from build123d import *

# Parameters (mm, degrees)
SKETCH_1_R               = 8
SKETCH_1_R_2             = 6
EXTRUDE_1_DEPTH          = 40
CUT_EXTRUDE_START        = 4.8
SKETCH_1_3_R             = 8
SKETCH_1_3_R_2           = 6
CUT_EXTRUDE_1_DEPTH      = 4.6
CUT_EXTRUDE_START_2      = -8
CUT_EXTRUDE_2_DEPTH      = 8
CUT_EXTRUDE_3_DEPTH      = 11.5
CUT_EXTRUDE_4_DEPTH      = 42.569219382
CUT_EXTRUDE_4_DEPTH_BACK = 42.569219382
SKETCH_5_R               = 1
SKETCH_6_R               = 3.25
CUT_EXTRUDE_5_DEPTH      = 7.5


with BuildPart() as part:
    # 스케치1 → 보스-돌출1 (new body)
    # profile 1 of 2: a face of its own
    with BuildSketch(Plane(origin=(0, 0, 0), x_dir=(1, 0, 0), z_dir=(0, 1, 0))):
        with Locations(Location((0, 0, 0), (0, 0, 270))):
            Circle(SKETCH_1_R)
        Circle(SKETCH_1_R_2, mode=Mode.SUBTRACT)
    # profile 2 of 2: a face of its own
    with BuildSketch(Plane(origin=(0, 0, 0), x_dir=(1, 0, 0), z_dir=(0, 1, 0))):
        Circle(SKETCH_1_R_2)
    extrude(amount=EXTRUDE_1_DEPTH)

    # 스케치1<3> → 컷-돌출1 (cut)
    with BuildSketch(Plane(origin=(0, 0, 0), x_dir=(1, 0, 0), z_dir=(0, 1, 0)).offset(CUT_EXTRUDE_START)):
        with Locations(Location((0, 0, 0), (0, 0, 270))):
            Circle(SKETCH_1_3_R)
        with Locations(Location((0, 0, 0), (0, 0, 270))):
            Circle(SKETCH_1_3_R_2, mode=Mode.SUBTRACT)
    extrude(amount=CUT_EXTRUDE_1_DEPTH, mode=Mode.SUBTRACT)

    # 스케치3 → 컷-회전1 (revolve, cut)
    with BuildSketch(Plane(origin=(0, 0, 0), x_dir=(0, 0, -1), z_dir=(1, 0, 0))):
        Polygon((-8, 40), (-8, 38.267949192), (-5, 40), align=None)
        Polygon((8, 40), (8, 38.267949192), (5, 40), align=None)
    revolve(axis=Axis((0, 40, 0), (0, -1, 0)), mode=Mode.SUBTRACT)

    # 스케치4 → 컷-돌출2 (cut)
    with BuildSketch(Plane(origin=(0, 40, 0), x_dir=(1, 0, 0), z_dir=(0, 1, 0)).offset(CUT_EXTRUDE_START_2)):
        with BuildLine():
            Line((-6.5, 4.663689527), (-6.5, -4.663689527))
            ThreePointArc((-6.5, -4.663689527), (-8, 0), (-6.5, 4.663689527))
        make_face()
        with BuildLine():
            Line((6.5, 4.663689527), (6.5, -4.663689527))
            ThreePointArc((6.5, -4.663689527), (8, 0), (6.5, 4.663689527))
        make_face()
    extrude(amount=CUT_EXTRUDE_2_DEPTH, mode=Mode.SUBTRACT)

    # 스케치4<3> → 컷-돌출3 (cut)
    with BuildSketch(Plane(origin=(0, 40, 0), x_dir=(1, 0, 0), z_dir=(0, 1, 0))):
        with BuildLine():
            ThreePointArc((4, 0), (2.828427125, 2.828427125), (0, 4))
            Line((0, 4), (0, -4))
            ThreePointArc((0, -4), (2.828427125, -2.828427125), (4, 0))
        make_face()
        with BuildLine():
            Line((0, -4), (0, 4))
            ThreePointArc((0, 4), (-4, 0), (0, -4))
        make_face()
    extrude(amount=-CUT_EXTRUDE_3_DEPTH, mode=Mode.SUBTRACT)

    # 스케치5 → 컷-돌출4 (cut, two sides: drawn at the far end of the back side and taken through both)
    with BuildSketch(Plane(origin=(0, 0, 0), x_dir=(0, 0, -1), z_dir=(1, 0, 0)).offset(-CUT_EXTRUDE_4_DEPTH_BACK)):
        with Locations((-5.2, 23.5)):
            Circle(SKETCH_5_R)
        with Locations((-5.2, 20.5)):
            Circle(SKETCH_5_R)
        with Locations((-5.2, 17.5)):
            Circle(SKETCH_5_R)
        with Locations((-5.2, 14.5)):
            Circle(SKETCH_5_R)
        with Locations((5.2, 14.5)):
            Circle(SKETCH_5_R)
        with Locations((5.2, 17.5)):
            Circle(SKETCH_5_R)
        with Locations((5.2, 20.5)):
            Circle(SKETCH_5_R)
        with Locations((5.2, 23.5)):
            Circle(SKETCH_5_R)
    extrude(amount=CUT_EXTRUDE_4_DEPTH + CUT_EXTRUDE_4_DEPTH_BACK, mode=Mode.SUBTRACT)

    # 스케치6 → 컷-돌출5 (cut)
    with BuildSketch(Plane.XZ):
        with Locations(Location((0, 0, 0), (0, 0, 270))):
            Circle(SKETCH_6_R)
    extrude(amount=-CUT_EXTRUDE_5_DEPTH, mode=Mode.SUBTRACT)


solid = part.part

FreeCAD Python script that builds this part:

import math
import FreeCAD as App
import Part
import Sketcher
Q = App.Units.Quantity

doc = App.newDocument("Part")
params = doc.addObject("Spreadsheet::Sheet", "Params")
for row, (alias, value) in enumerate([
    ("sketch1_diameter", "16 mm"),
    ("pad1_length", "40 mm"),
    ("sketch2_diameter", "16 mm"),
    ("sketch2_diameter2", "12 mm"),
    ("pocket1_length", "4.6 mm"),
    ("sketch3_height", "3 mm"),
    ("groove_angle", "360 deg"),
    ("sketch4_radius", "8 mm"),
    ("pocket2_length", "8 mm"),
    ("sketch5_radius", "4 mm"),
    ("pocket3_length", "11.5 mm"),
    ("sketch6_diameter", "2 mm"),
    ("sketch7_diameter", "6.5 mm"),
    ("pocket5_length", "7.5 mm"),
], start=1):
    params.set(f"A{row}", alias)
    params.set(f"B{row}", "=" + value)
    params.setAlias(f"B{row}", alias)

body = doc.addObject("PartDesign::Body", "Body")

sketch1 = body.newObject("Sketcher::SketchObject", "Sketch")
sketch1.AttachmentSupport = (doc.getObject("XZ_Plane"), [""])
sketch1.MapMode = "FlatFace"
sketch1.addGeometry(Part.Circle(App.Vector(0, 0, 0), App.Vector(0, 0, 1), 8), False)
sketch1.addConstraint([
    Sketcher.Constraint("Coincident", 0, 3, -1, 1),
    Sketcher.Constraint("Diameter", 0, 16.0),
])
sketch1.setExpression("Constraints[1]", "Params.sketch1_diameter")
pad1 = body.newObject("PartDesign::Pad", "Pad")
pad1.Profile = sketch1
pad1.setExpression("Length", "Params.pad1_length")
pad1.Reversed = True

sketch2 = body.newObject("Sketcher::SketchObject", "Sketch001")
sketch2.AttachmentSupport = (doc.getObject("XZ_Plane"), [""])
sketch2.MapMode = "FlatFace"
sketch2.AttachmentOffset = App.Placement(App.Vector(0, 0, -4.8), App.Rotation())
sketch2.addGeometry([
    Part.Circle(App.Vector(0, 0, 0), App.Vector(0, 0, 1), 8),
    Part.Circle(App.Vector(0, 0, 0), App.Vector(0, 0, 1), 6),
], False)
sketch2.addConstraint([
    Sketcher.Constraint("Coincident", 0, 3, -1, 1),
    Sketcher.Constraint("Coincident", 1, 3, -1, 1),
    Sketcher.Constraint("Diameter", 0, 16.0),
    Sketcher.Constraint("Diameter", 1, 12.0),
])
sketch2.setExpression("Constraints[2]", "Params.sketch2_diameter")
sketch2.setExpression("Constraints[3]", "Params.sketch2_diameter2")
pocket1 = body.newObject("PartDesign::Pocket", "Pocket")
pocket1.Profile = sketch2
pocket1.setExpression("Length", "Params.pocket1_length")

sketch3 = body.newObject("Sketcher::SketchObject", "Sketch002")
sketch3.AttachmentSupport = (doc.getObject("YZ_Plane"), [""])
sketch3.MapMode = "FlatFace"
sketch3.addGeometry([
    Part.LineSegment(App.Vector(40, 8, 0), App.Vector(38.3, 8, 0)),
    Part.LineSegment(App.Vector(38.3, 8, 0), App.Vector(40, 5, 0)),
    Part.LineSegment(App.Vector(40, 5, 0), App.Vector(40, 8, 0)),
    Part.LineSegment(App.Vector(38.3, -8, 0), App.Vector(40, -8, 0)),
    Part.LineSegment(App.Vector(40, -8, 0), App.Vector(40, -5, 0)),
    Part.LineSegment(App.Vector(40, -5, 0), App.Vector(38.3, -8, 0)),
], False)
sketch3.addConstraint([
    Sketcher.Constraint("Coincident", 0, 2, 1, 1),
    Sketcher.Constraint("Coincident", 1, 2, 2, 1),
    Sketcher.Constraint("Coincident", 2, 2, 0, 1),
    Sketcher.Constraint("Coincident", 3, 2, 4, 1),
    Sketcher.Constraint("Coincident", 4, 2, 5, 1),
    Sketcher.Constraint("Coincident", 5, 2, 3, 1),
    Sketcher.Constraint("Horizontal", 0),
    Sketcher.Constraint("Vertical", 2),
    Sketcher.Constraint("Horizontal", 3),
    Sketcher.Constraint("Vertical", 4),
    Sketcher.Constraint("Symmetric", 2, 2, 3, 2, -1),
    Sketcher.Constraint("Vertical", 0, 2, 5, 2),
    Sketcher.Constraint("Equal", 2, 4),
    Sketcher.Constraint("DistanceY", 2, 1, 2, 2, 3.0),
    Sketcher.Constraint("Angle", 1, Q("-60 deg")),
    Sketcher.Constraint("DistanceY", -1, 1, 0, 2, 8.0),
    Sketcher.Constraint("DistanceX", -1, 1, 1, 2, 40.0),
])
sketch3.setExpression("Constraints[13]", "Params.sketch3_height")
groove = body.newObject("PartDesign::Groove", "Groove")
groove.Profile = sketch3
groove.ReferenceAxis = (sketch3, ["H_Axis"])
groove.setExpression("Angle", "Params.groove_angle")

sketch4 = body.newObject("Sketcher::SketchObject", "Sketch003")
sketch4.AttachmentSupport = (doc.getObject("XZ_Plane"), [""])
sketch4.MapMode = "FlatFace"
sketch4.AttachmentOffset = App.Placement(App.Vector(0, 0, -32), App.Rotation())
sketch4.addGeometry([
    Part.LineSegment(App.Vector(-6, 5, 0), App.Vector(-6, -5, 0)),
    Part.ArcOfCircle(Part.Circle(App.Vector(0, 0, 0), App.Vector(0, 0, 1), 8), math.radians(144), math.radians(216)),
    Part.LineSegment(App.Vector(6, -5, 0), App.Vector(6, 5, 0)),
    Part.ArcOfCircle(Part.Circle(App.Vector(0, 0, 0), App.Vector(0, 0, 1), 8), math.radians(-36), math.radians(36)),
], False)
sketch4.addConstraint([
    Sketcher.Constraint("Coincident", 0, 1, 1, 1),
    Sketcher.Constraint("Coincident", 1, 2, 0, 2),
    Sketcher.Constraint("Coincident", 2, 1, 3, 1),
    Sketcher.Constraint("Coincident", 3, 2, 2, 2),
    Sketcher.Constraint("Vertical", 0),
    Sketcher.Constraint("Vertical", 2),
    Sketcher.Constraint("Coincident", 1, 3, -1, 1),
    Sketcher.Constraint("Coincident", 3, 3, -1, 1),
    Sketcher.Constraint("Equal", 1, 3),
    Sketcher.Constraint("Horizontal", 1, 2, 2, 1),
    Sketcher.Constraint("Radius", 1, 8.0),
    Sketcher.Constraint("DistanceX", 1, 2, 2, 1, 13.0),
])
sketch4.setExpression("Constraints[10]", "Params.sketch4_radius")
pocket2 = body.newObject("PartDesign::Pocket", "Pocket001")
pocket2.Profile = sketch4
pocket2.setExpression("Length", "Params.pocket2_length")

sketch5 = body.newObject("Sketcher::SketchObject", "Sketch004")
sketch5.AttachmentSupport = (doc.getObject("XZ_Plane"), [""])
sketch5.MapMode = "FlatFace"
sketch5.AttachmentOffset = App.Placement(App.Vector(0, 0, -40), App.Rotation())
sketch5.addGeometry([
    Part.ArcOfCircle(Part.Circle(App.Vector(0, 0, 0), App.Vector(0, 0, 1), 4), math.radians(-90), math.radians(0)),
    Part.ArcOfCircle(Part.Circle(App.Vector(0, 0, 0), App.Vector(0, 0, 1), 4), math.radians(90), math.radians(270)),
    Part.ArcOfCircle(Part.Circle(App.Vector(0, 0, 0), App.Vector(0, 0, 1), 4), math.radians(0), math.radians(90)),
], False)
sketch5.addConstraint([
    Sketcher.Constraint("Tangent", 0, 1, 1, 2),
    Sketcher.Constraint("Tangent", 1, 1, 2, 2),
    Sketcher.Constraint("Tangent", 2, 1, 0, 2),
    Sketcher.Constraint("Coincident", 0, 3, -1, 1),
    Sketcher.Constraint("PointOnObject", 0, 1, -2),
    Sketcher.Constraint("PointOnObject", 1, 1, -2),
    Sketcher.Constraint("PointOnObject", 2, 1, -1),
    Sketcher.Constraint("Radius", 0, 4.0),
])
sketch5.setExpression("Constraints[7]", "Params.sketch5_radius")
pocket3 = body.newObject("PartDesign::Pocket", "Pocket002")
pocket3.Profile = sketch5
pocket3.setExpression("Length", "Params.pocket3_length")
pocket3.Reversed = True

sketch6 = body.newObject("Sketcher::SketchObject", "Sketch005")
sketch6.AttachmentSupport = (doc.getObject("YZ_Plane"), [""])
sketch6.MapMode = "FlatFace"
sketch6.addGeometry([
    Part.Circle(App.Vector(23.5, 5.2, 0), App.Vector(0, 0, 1), 1),
    Part.Circle(App.Vector(20.5, 5.2, 0), App.Vector(0, 0, 1), 1),
    Part.Circle(App.Vector(17.5, 5.2, 0), App.Vector(0, 0, 1), 1),
    Part.Circle(App.Vector(14.5, 5.2, 0), App.Vector(0, 0, 1), 1),
    Part.Circle(App.Vector(14.5, -5.2, 0), App.Vector(0, 0, 1), 1),
    Part.Circle(App.Vector(17.5, -5.2, 0), App.Vector(0, 0, 1), 1),
    Part.Circle(App.Vector(20.5, -5.2, 0), App.Vector(0, 0, 1), 1),
    Part.Circle(App.Vector(23.5, -5.2, 0), App.Vector(0, 0, 1), 1),
], False)
sketch6.addConstraint([
    Sketcher.Constraint("Equal", 0, 1),
    Sketcher.Constraint("Equal", 1, 2),
    Sketcher.Constraint("Equal", 2, 3),
    Sketcher.Constraint("Equal", 3, 4),
    Sketcher.Constraint("Equal", 4, 5),
    Sketcher.Constraint("Equal", 5, 6),
    Sketcher.Constraint("Equal", 6, 7),
    Sketcher.Constraint("Symmetric", 3, 3, 4, 3, -1),
    Sketcher.Constraint("Symmetric", 2, 3, 5, 3, -1),
    Sketcher.Constraint("Symmetric", 1, 3, 6, 3, -1),
    Sketcher.Constraint("Symmetric", 0, 3, 7, 3, -1),
    Sketcher.Constraint("Horizontal", 0, 3, 1, 3),
    Sketcher.Constraint("Horizontal", 1, 3, 2, 3),
    Sketcher.Constraint("Horizontal", 2, 3, 3, 3),
    Sketcher.Constraint("Diameter", 0, 2.0),
    Sketcher.Constraint("DistanceX", 1, 3, 0, 3, 3.0),
    Sketcher.Constraint("DistanceX", 2, 3, 1, 3, 3.0),
    Sketcher.Constraint("DistanceX", 3, 3, 2, 3, 3.0),
    Sketcher.Constraint("DistanceX", -1, 1, 0, 3, 23.5),
    Sketcher.Constraint("DistanceY", -1, 1, 0, 3, 5.2),
])
sketch6.setExpression("Constraints[14]", "Params.sketch6_diameter")
pocket4 = body.newObject("PartDesign::Pocket", "Pocket003")
pocket4.Profile = sketch6
pocket4.Type = "ThroughAll"
pocket4.Midplane = True

sketch7 = body.newObject("Sketcher::SketchObject", "Sketch006")
sketch7.AttachmentSupport = (doc.getObject("XZ_Plane"), [""])
sketch7.MapMode = "FlatFace"
sketch7.addGeometry(Part.Circle(App.Vector(0, 0, 0), App.Vector(0, 0, 1), 3.2), False)
sketch7.addConstraint([
    Sketcher.Constraint("Coincident", 0, 3, -1, 1),
    Sketcher.Constraint("Diameter", 0, 6.5),
])
sketch7.setExpression("Constraints[1]", "Params.sketch7_diameter")
pocket5 = body.newObject("PartDesign::Pocket", "Pocket004")
pocket5.Profile = sketch7
pocket5.setExpression("Length", "Params.pocket5_length")

doc.recompute()
